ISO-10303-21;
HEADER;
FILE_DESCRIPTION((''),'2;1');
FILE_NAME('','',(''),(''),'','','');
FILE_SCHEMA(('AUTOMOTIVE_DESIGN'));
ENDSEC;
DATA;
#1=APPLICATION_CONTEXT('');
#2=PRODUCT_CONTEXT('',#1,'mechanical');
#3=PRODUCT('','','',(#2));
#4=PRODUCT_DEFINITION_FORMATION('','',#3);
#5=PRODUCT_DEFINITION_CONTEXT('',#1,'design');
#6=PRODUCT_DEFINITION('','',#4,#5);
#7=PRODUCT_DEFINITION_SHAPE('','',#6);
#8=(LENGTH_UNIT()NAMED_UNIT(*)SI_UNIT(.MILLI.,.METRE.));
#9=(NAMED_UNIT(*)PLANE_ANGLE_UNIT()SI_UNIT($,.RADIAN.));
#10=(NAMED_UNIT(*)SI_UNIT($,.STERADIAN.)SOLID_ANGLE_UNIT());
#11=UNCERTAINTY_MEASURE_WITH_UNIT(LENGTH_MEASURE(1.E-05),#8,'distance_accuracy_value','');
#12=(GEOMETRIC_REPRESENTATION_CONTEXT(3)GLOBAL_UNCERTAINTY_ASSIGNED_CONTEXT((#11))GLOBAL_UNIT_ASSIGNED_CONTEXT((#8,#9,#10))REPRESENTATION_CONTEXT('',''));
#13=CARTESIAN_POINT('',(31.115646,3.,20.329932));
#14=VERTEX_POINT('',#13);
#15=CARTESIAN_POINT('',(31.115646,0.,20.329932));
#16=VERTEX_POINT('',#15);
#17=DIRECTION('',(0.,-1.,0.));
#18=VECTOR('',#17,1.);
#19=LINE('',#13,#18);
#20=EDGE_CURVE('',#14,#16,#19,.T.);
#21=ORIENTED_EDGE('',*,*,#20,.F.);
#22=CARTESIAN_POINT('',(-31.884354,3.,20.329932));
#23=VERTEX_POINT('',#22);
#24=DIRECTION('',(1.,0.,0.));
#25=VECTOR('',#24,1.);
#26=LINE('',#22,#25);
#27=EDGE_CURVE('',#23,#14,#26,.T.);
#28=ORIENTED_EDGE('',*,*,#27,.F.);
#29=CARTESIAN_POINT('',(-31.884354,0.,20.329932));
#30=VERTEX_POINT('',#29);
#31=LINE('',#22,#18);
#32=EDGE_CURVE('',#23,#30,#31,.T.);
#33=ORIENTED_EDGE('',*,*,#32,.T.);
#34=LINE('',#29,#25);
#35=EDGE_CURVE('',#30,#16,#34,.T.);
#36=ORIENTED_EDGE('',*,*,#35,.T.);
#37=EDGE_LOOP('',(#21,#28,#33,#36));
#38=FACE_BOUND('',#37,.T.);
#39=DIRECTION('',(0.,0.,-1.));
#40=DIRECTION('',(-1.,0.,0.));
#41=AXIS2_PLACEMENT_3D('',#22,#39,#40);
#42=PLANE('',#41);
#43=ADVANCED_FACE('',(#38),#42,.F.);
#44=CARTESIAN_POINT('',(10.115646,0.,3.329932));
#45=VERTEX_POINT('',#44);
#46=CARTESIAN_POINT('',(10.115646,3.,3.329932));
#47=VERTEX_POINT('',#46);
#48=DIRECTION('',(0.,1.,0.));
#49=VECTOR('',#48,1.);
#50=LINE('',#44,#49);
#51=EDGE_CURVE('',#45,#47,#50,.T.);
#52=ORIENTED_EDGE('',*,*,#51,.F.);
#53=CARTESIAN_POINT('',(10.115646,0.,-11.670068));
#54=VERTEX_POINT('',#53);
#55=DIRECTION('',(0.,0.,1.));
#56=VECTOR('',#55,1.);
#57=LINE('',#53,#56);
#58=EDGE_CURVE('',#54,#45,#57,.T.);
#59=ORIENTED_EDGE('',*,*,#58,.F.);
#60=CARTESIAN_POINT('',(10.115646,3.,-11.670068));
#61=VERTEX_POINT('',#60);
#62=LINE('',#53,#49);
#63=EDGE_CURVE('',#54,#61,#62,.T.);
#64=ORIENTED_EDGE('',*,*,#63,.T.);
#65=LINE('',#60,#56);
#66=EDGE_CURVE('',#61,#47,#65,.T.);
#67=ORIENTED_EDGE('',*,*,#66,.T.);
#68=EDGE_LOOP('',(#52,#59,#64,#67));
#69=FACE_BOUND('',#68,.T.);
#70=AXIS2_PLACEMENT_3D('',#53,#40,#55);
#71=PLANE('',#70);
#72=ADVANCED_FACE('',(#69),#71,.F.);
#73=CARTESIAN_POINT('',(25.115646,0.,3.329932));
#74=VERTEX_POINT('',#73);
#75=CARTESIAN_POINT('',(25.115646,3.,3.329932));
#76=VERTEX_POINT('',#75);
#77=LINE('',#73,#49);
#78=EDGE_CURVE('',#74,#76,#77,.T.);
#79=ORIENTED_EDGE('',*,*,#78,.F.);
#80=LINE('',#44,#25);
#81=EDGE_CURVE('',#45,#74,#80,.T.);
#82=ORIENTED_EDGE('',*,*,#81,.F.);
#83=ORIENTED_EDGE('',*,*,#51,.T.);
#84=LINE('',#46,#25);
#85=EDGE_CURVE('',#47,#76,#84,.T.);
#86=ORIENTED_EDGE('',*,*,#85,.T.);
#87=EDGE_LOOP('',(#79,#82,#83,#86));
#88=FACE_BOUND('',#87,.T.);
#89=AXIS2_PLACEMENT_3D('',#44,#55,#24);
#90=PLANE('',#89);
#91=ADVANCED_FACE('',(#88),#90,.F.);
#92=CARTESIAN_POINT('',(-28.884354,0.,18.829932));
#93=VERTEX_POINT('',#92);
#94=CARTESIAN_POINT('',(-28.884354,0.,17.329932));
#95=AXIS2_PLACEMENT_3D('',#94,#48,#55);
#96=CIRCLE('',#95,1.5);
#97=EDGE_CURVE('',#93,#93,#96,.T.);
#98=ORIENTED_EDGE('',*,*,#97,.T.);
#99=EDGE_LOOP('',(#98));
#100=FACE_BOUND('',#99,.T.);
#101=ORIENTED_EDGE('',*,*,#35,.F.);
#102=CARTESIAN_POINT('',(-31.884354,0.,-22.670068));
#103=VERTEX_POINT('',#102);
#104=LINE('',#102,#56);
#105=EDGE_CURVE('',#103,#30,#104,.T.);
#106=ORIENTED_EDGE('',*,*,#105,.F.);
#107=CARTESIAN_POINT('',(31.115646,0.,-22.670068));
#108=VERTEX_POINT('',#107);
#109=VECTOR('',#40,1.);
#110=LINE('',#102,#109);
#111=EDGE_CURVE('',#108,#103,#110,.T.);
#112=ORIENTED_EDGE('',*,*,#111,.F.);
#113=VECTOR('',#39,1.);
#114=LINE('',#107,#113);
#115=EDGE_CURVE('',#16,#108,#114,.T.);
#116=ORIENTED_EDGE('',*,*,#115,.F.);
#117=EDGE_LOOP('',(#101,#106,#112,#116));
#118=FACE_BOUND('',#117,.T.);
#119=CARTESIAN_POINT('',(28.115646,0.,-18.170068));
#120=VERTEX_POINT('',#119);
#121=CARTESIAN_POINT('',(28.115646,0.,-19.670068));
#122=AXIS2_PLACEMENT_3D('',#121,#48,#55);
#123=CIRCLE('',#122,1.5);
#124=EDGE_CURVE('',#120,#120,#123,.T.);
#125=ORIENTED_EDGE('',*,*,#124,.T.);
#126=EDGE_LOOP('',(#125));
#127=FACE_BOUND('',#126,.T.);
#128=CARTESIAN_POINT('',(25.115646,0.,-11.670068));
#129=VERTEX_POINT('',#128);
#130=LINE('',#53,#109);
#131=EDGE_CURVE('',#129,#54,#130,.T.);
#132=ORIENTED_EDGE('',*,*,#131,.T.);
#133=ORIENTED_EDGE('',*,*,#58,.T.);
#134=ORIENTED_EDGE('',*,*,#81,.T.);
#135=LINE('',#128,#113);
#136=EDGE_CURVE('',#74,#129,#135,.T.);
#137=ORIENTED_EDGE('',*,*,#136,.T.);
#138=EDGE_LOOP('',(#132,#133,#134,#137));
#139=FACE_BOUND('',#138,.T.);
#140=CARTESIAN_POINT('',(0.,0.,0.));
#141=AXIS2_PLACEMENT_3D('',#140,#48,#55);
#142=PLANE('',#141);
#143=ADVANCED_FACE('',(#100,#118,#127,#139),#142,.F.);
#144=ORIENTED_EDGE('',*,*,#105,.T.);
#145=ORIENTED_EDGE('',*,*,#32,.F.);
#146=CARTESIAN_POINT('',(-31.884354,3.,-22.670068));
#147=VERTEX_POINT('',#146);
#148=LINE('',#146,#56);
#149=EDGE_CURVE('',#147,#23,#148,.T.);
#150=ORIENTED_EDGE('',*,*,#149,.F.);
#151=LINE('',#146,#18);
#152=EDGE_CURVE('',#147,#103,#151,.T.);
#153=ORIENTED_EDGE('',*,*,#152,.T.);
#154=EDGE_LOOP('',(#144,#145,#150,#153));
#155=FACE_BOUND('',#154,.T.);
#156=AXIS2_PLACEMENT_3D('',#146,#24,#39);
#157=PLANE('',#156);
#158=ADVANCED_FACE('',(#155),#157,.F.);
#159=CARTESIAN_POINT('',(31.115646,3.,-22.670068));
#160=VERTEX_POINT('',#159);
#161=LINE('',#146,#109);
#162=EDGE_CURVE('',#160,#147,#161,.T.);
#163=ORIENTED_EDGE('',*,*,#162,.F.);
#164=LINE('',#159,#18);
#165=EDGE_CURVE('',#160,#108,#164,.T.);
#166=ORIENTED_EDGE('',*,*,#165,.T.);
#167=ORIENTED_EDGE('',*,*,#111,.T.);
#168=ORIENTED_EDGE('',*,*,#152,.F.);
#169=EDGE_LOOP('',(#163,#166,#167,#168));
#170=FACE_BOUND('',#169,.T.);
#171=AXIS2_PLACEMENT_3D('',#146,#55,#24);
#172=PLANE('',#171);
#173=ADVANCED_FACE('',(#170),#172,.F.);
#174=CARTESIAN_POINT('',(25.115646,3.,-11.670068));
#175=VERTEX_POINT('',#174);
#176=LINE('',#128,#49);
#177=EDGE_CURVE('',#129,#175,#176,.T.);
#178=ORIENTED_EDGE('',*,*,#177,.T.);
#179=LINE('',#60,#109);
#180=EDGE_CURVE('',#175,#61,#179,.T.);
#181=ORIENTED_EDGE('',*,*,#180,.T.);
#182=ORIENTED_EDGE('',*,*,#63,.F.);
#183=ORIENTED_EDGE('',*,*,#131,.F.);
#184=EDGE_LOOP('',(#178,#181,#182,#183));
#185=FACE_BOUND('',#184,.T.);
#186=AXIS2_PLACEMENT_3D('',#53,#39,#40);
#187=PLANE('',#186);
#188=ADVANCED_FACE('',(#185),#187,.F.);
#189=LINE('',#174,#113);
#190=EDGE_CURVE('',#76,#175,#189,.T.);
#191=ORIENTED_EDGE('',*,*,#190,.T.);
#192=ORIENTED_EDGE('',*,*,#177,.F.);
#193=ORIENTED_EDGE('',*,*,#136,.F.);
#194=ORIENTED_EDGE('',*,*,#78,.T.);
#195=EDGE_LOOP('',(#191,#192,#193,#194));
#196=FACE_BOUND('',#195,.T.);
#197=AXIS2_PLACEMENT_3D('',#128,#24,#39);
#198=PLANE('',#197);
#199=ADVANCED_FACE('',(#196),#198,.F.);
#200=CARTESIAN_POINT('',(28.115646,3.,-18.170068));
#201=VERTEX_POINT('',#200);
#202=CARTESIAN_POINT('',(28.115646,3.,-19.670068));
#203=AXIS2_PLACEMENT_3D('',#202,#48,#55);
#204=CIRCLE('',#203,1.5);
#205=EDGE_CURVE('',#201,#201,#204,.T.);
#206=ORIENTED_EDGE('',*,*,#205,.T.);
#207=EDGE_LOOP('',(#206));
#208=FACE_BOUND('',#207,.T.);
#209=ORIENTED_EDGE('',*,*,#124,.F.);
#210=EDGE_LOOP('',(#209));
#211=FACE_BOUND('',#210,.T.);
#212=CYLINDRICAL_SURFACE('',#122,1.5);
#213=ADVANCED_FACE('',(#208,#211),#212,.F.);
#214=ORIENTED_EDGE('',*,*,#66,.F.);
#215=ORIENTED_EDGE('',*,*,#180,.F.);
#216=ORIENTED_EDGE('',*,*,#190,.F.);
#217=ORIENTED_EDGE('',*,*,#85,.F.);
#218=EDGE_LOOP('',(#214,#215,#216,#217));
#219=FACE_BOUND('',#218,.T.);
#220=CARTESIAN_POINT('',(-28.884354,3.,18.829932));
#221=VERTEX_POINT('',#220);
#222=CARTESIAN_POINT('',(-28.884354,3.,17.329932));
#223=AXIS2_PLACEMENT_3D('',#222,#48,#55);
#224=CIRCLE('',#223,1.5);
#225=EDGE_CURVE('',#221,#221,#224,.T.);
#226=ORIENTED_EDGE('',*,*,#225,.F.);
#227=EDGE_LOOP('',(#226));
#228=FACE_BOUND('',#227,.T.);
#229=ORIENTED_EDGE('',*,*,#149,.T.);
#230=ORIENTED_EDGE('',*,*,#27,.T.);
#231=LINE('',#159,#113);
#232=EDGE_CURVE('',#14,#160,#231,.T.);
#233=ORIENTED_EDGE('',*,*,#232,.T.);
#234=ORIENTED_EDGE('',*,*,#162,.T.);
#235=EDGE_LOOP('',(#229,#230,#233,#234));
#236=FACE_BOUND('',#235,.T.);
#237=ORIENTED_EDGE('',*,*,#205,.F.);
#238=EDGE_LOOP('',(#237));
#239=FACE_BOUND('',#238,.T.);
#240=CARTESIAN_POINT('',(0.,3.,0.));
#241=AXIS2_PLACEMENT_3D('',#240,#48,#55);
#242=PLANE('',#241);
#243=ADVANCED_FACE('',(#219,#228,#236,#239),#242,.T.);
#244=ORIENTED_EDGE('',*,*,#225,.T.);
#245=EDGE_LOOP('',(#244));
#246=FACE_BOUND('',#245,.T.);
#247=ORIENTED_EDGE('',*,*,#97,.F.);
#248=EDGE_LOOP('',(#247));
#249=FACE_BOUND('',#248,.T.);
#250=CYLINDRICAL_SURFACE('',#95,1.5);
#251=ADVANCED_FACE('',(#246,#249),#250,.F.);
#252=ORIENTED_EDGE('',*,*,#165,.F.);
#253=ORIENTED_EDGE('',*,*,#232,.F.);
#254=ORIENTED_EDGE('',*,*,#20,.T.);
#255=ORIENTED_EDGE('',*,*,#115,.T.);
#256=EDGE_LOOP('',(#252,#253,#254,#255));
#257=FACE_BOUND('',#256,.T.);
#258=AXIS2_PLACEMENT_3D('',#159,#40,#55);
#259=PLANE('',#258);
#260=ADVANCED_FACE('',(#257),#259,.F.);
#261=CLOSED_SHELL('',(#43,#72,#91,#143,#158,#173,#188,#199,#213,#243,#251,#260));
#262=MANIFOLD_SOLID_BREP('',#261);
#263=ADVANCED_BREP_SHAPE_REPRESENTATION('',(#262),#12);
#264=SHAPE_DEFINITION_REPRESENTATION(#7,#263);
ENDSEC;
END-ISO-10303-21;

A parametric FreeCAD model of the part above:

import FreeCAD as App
import Part
import Sketcher


def add_polygon(sketch, points):
    """Adds a closed chain of lines whose ends are joined by coincident constraints."""
    first, n = sketch.GeometryCount, len(points)
    for a, b in zip(points, points[1:] + points[:1]):
        sketch.addGeometry(Part.LineSegment(App.Vector(*a, 0), App.Vector(*b, 0)), False)
    for i in range(n):
        sketch.addConstraint(Sketcher.Constraint("Coincident", first + i, 2, first + (i + 1) % n, 1))

doc = App.newDocument("Part")
params = doc.addObject("Spreadsheet::Sheet", "Params")
for row, (alias, value) in enumerate([
    ("sketch1_width", "63 mm"),
    ("sketch1_height", "43 mm"),
    ("pad1_length", "3 mm"),
    ("sketch2_diameter", "3 mm"),
    ("pocket1_length", "3 mm"),
    ("sketch3_diameter", "3 mm"),
    ("pocket2_length", "3 mm"),
    ("sketch4_width", "15 mm"),
    ("pocket3_length", "3 mm"),
], start=1):
    params.set(f"A{row}", alias)
    params.set(f"B{row}", "=" + value)
    params.setAlias(f"B{row}", alias)

body = doc.addObject("PartDesign::Body", "Body")

sketch1 = body.newObject("Sketcher::SketchObject", "Sketch")
sketch1.AttachmentSupport = (doc.getObject("XZ_Plane"), [""])
sketch1.MapMode = "FlatFace"
add_polygon(sketch1, [(-32, -23), (-32, 20), (31, 20), (31, -23)])
sketch1.addConstraint([
    Sketcher.Constraint("Vertical", 0),
    Sketcher.Constraint("Horizontal", 1),
    Sketcher.Constraint("Vertical", 2),
    Sketcher.Constraint("Horizontal", 3),
    Sketcher.Constraint("DistanceX", 1, 1, 1, 2, 63.0),
    Sketcher.Constraint("DistanceY", 0, 1, 0, 2, 43.0),
    Sketcher.Constraint("DistanceY", -1, 1, 0, 2, 20.329932),
    Sketcher.Constraint("DistanceX", 0, 2, -1, 1, 31.884354),
])
sketch1.setExpression("Constraints[8]", "Params.sketch1_width")
sketch1.setExpression("Constraints[9]", "Params.sketch1_height")
pad1 = body.newObject("PartDesign::Pad", "Pad")
pad1.Profile = sketch1
pad1.setExpression("Length", "Params.pad1_length")
pad1.Reversed = True

sketch2 = body.newObject("Sketcher::SketchObject", "Sketch001")
sketch2.AttachmentSupport = (doc.getObject("XZ_Plane"), [""])
sketch2.MapMode = "FlatFace"
sketch2.AttachmentOffset = App.Placement(App.Vector(0, 0, -3), App.Rotation())
sketch2.addGeometry(Part.Circle(App.Vector(28.1, -19.7, 0), App.Vector(0, 0, 1), 1.5), False)
sketch2.addConstraint([
    Sketcher.Constraint("Diameter", 0, 3.0),
    Sketcher.Constraint("DistanceY", 0, 3, -1, 1, 19.670068),
    Sketcher.Constraint("DistanceX", -1, 1, 0, 3, 28.115646),
])
sketch2.setExpression("Constraints[0]", "Params.sketch2_diameter")
pocket1 = body.newObject("PartDesign::Pocket", "Pocket")
pocket1.Profile = sketch2
pocket1.setExpression("Length", "Params.pocket1_length")
pocket1.Reversed = True

sketch3 = body.newObject("Sketcher::SketchObject", "Sketch002")
sketch3.AttachmentSupport = (doc.getObject("XZ_Plane"), [""])
sketch3.MapMode = "FlatFace"
sketch3.AttachmentOffset = App.Placement(App.Vector(0, 0, -3), App.Rotation())
sketch3.addGeometry(Part.Circle(App.Vector(-28.9, 17.3, 0), App.Vector(0, 0, 1), 1.5), False)
sketch3.addConstraint([
    Sketcher.Constraint("Diameter", 0, 3.0),
    Sketcher.Constraint("DistanceY", -1, 1, 0, 3, 17.329932),
    Sketcher.Constraint("DistanceX", 0, 3, -1, 1, 28.884354),
])
sketch3.setExpression("Constraints[0]", "Params.sketch3_diameter")
pocket2 = body.newObject("PartDesign::Pocket", "Pocket001")
pocket2.Profile = sketch3
pocket2.setExpression("Length", "Params.pocket2_length")
pocket2.Reversed = True

sketch4 = body.newObject("Sketcher::SketchObject", "Sketch003")
sketch4.AttachmentSupport = (doc.getObject("XZ_Plane"), [""])
sketch4.MapMode = "FlatFace"
sketch4.AttachmentOffset = App.Placement(App.Vector(0, 0, -3), App.Rotation())
add_polygon(sketch4, [(10, -12), (10, 3), (25, 3), (25, -12)])
sketch4.addConstraint([
    Sketcher.Constraint("Vertical", 0),
    Sketcher.Constraint("Horizontal", 1),
    Sketcher.Constraint("Vertical", 2),
    Sketcher.Constraint("Horizontal", 3),
    Sketcher.Constraint("Equal", 3, 0),
    Sketcher.Constraint("DistanceX", 1, 1, 1, 2, 15.0),
    Sketcher.Constraint("DistanceY", -1, 1, 0, 2, 3.329932),
    Sketcher.Constraint("DistanceX", -1, 1, 0, 2, 10.115646),
])
sketch4.setExpression("Constraints[9]", "Params.sketch4_width")
pocket3 = body.newObject("PartDesign::Pocket", "Pocket002")
pocket3.Profile = sketch4
pocket3.setExpression("Length", "Params.pocket3_length")
pocket3.Reversed = True

doc.recompute()
